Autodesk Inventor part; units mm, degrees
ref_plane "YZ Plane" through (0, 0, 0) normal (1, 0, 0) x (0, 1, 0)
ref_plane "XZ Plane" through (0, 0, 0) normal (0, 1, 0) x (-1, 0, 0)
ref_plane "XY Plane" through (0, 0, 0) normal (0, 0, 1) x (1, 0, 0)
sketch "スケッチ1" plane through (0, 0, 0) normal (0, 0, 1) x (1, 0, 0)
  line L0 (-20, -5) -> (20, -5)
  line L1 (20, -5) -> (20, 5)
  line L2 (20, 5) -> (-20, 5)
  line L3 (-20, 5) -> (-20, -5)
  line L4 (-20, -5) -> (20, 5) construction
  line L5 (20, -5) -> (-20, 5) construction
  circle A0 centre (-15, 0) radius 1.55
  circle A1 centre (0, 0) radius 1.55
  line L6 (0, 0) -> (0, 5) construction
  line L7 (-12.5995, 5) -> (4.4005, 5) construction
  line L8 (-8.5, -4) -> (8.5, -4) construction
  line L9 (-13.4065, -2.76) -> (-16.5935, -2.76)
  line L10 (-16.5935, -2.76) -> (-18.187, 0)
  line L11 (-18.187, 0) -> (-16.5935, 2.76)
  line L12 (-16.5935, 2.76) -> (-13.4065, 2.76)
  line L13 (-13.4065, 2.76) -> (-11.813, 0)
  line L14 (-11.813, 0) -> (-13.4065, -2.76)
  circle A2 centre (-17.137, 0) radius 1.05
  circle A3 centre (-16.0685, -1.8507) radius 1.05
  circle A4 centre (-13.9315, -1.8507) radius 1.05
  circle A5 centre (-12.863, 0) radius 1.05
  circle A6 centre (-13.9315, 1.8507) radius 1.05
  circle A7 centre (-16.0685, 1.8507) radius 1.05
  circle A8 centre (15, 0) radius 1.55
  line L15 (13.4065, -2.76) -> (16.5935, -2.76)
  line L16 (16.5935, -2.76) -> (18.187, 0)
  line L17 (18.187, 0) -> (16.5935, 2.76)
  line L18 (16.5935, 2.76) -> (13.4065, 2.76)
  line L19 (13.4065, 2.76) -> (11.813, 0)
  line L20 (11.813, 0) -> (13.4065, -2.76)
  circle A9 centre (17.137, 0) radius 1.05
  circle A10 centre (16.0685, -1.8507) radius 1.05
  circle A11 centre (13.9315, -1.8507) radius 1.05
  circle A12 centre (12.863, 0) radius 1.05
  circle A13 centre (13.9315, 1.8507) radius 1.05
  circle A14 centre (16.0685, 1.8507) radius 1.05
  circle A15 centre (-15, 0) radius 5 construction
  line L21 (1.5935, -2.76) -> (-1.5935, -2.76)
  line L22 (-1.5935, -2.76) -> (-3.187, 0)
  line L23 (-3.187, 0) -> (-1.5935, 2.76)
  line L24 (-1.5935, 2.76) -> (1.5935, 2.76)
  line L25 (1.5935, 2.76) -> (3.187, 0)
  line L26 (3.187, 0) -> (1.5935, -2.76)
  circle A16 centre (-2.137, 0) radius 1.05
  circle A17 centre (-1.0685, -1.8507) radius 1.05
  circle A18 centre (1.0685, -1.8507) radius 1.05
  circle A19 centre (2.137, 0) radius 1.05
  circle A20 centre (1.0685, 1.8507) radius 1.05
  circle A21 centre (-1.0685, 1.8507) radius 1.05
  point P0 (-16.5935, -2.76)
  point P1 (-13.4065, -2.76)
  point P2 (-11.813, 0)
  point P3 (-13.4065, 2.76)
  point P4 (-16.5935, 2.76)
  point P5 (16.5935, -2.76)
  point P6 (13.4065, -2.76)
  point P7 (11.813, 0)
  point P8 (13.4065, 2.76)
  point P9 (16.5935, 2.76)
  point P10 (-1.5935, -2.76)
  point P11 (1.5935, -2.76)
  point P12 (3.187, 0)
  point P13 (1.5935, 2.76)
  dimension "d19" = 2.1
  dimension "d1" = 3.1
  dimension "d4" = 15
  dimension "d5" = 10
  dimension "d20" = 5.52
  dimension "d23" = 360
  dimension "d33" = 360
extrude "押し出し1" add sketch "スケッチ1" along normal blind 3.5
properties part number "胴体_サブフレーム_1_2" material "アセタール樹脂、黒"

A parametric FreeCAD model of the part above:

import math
import FreeCAD as App
import Part
import Sketcher
from FreeCAD import Vector
Q = App.Units.Quantity


def add_polygon(sketch, points):
    """Adds a closed chain of lines whose ends are joined by coincident constraints."""
    first, n = sketch.GeometryCount, len(points)
    for a, b in zip(points, points[1:] + points[:1]):
        sketch.addGeometry(Part.LineSegment(App.Vector(*a, 0), App.Vector(*b, 0)), False)
    for i in range(n):
        sketch.addConstraint(Sketcher.Constraint("Coincident", first + i, 2, first + (i + 1) % n, 1))

doc = App.newDocument("Part")
body = doc.addObject("PartDesign::Body", "Body")

# Sketch on XY plane
sketch1 = body.newObject("Sketcher::SketchObject", "Sketch")
sketch1.AttachmentSupport = (doc.getObject("XY_Plane"), [""])
sketch1.MapMode = "FlatFace"
add_polygon(sketch1, [(-20, 5), (-20, -5), (20, -5), (20, 5)])  # lines 0-3
sketch1.addGeometry(Part.LineSegment(Vector(-12.9, 1.9, 0), Vector(-12.3, 0.9, 0)), False)  # 4
sketch1.addGeometry(Part.ArcOfCircle(Part.Circle(Vector(-12.9, 0, 0), Vector(0, 0, 1), 1.1), math.radians(-60), math.radians(60)), False)  # 5
sketch1.addGeometry(Part.LineSegment(Vector(-12.3, -0.9, 0), Vector(-12.9, -1.9, 0)), False)  # 6
sketch1.addGeometry(Part.ArcOfCircle(Part.Circle(Vector(-13.9, -1.9, 0), Vector(0, 0, 1), 1.1), math.radians(-120), math.radians(0)), False)  # 7
sketch1.addGeometry(Part.LineSegment(Vector(-14.5, -2.8, 0), Vector(-15.5, -2.8, 0)), False)  # 8
sketch1.addGeometry(Part.ArcOfCircle(Part.Circle(Vector(-16.1, -1.9, 0), Vector(0, 0, 1), 1.1), math.radians(180), math.radians(300)), False)  # 9
sketch1.addGeometry(Part.LineSegment(Vector(-17.1, -1.9, 0), Vector(-17.7, -0.9, 0)), False)  # 10
sketch1.addGeometry(Part.ArcOfCircle(Part.Circle(Vector(-17.1, 0, 0), Vector(0, 0, 1), 1.1), math.radians(120), math.radians(240)), False)  # 11
sketch1.addGeometry(Part.LineSegment(Vector(-17.7, 0.9, 0), Vector(-17.1, 1.9, 0)), False)  # 12
sketch1.addGeometry(Part.ArcOfCircle(Part.Circle(Vector(-16.1, 1.9, 0), Vector(0, 0, 1), 1.1), math.radians(60), math.radians(180)), False)  # 13
sketch1.addGeometry(Part.LineSegment(Vector(-15.5, 2.8, 0), Vector(-14.5, 2.8, 0)), False)  # 14
sketch1.addGeometry(Part.ArcOfCircle(Part.Circle(Vector(-13.9, 1.9, 0), Vector(0, 0, 1), 1.1), math.radians(0), math.radians(120)), False)  # 15
sketch1.addGeometry(Part.LineSegment(Vector(2.1, 1.9, 0), Vector(2.7, 0.9, 0)), False)  # 16
sketch1.addGeometry(Part.ArcOfCircle(Part.Circle(Vector(2.1, 0, 0), Vector(0, 0, 1), 1.1), math.radians(-60), math.radians(60)), False)  # 17
sketch1.addGeometry(Part.LineSegment(Vector(2.7, -0.9, 0), Vector(2.1, -1.9, 0)), False)  # 18
sketch1.addGeometry(Part.ArcOfCircle(Part.Circle(Vector(1.1, -1.9, 0), Vector(0, 0, 1), 1.1), math.radians(-120), math.radians(0)), False)  # 19
sketch1.addGeometry(Part.LineSegment(Vector(0.5, -2.8, 0), Vector(-0.5, -2.8, 0)), False)  # 20
sketch1.addGeometry(Part.ArcOfCircle(Part.Circle(Vector(-1.1, -1.9, 0), Vector(0, 0, 1), 1.1), math.radians(180), math.radians(300)), False)  # 21
sketch1.addGeometry(Part.LineSegment(Vector(-2.1, -1.9, 0), Vector(-2.7, -0.9, 0)), False)  # 22
sketch1.addGeometry(Part.ArcOfCircle(Part.Circle(Vector(-2.1, 0, 0), Vector(0, 0, 1), 1.1), math.radians(120), math.radians(240)), False)  # 23
sketch1.addGeometry(Part.LineSegment(Vector(-2.7, 0.9, 0), Vector(-2.1, 1.9, 0)), False)  # 24
sketch1.addGeometry(Part.ArcOfCircle(Part.Circle(Vector(-1.1, 1.9, 0), Vector(0, 0, 1), 1.1), math.radians(60), math.radians(180)), False)  # 25
sketch1.addGeometry(Part.LineSegment(Vector(-0.5, 2.8, 0), Vector(0.5, 2.8, 0)), False)  # 26
sketch1.addGeometry(Part.ArcOfCircle(Part.Circle(Vector(1.1, 1.9, 0), Vector(0, 0, 1), 1.1), math.radians(0), math.radians(120)), False)  # 27
sketch1.addGeometry(Part.LineSegment(Vector(17.1, 1.9, 0), Vector(17.7, 0.9, 0)), False)  # 28
sketch1.addGeometry(Part.ArcOfCircle(Part.Circle(Vector(17.1, 0, 0), Vector(0, 0, 1), 1.1), math.radians(-60), math.radians(60)), False)  # 29
sketch1.addGeometry(Part.LineSegment(Vector(17.7, -0.9, 0), Vector(17.1, -1.9, 0)), False)  # 30
sketch1.addGeometry(Part.ArcOfCircle(Part.Circle(Vector(16.1, -1.9, 0), Vector(0, 0, 1), 1.1), math.radians(-120), math.radians(0)), False)  # 31
sketch1.addGeometry(Part.LineSegment(Vector(15.5, -2.8, 0), Vector(14.5, -2.8, 0)), False)  # 32
sketch1.addGeometry(Part.ArcOfCircle(Part.Circle(Vector(13.9, -1.9, 0), Vector(0, 0, 1), 1.1), math.radians(180), math.radians(300)), False)  # 33
sketch1.addGeometry(Part.LineSegment(Vector(12.9, -1.9, 0), Vector(12.3, -0.9, 0)), False)  # 34
sketch1.addGeometry(Part.ArcOfCircle(Part.Circle(Vector(12.9, 0, 0), Vector(0, 0, 1), 1.1), math.radians(120), math.radians(240)), False)  # 35
sketch1.addGeometry(Part.LineSegment(Vector(12.3, 0.9, 0), Vector(12.9, 1.9, 0)), False)  # 36
sketch1.addGeometry(Part.ArcOfCircle(Part.Circle(Vector(13.9, 1.9, 0), Vector(0, 0, 1), 1.1), math.radians(60), math.radians(180)), False)  # 37
sketch1.addGeometry(Part.LineSegment(Vector(14.5, 2.8, 0), Vector(15.5, 2.8, 0)), False)  # 38
sketch1.addGeometry(Part.ArcOfCircle(Part.Circle(Vector(16.1, 1.9, 0), Vector(0, 0, 1), 1.1), math.radians(0), math.radians(120)), False)  # 39
sketch1.addConstraint([
    Sketcher.Constraint("Coincident", 4, 2, 5, 2),
    Sketcher.Constraint("Coincident", 5, 1, 6, 1),
    Sketcher.Constraint("Coincident", 6, 2, 7, 2),
    Sketcher.Constraint("Coincident", 7, 1, 8, 1),
    Sketcher.Constraint("Coincident", 8, 2, 9, 2),
    Sketcher.Constraint("Coincident", 9, 1, 10, 1),
    Sketcher.Constraint("Coincident", 10, 2, 11, 2),
    Sketcher.Constraint("Coincident", 11, 1, 12, 1),
    Sketcher.Constraint("Coincident", 12, 2, 13, 2),
    Sketcher.Constraint("Coincident", 13, 1, 14, 1),
    Sketcher.Constraint("Coincident", 14, 2, 15, 2),
    Sketcher.Constraint("Coincident", 15, 1, 4, 1),
    Sketcher.Constraint("Coincident", 16, 2, 17, 2),
    Sketcher.Constraint("Coincident", 17, 1, 18, 1),
    Sketcher.Constraint("Coincident", 18, 2, 19, 2),
    Sketcher.Constraint("Coincident", 19, 1, 20, 1),
    Sketcher.Constraint("Coincident", 20, 2, 21, 2),
    Sketcher.Constraint("Coincident", 21, 1, 22, 1),
    Sketcher.Constraint("Coincident", 22, 2, 23, 2),
    Sketcher.Constraint("Coincident", 23, 1, 24, 1),
    Sketcher.Constraint("Coincident", 24, 2, 25, 2),
    Sketcher.Constraint("Coincident", 25, 1, 26, 1),
    Sketcher.Constraint("Coincident", 26, 2, 27, 2),
    Sketcher.Constraint("Coincident", 27, 1, 16, 1),
    Sketcher.Constraint("Coincident", 28, 2, 29, 2),
    Sketcher.Constraint("Coincident", 29, 1, 30, 1),
    Sketcher.Constraint("Coincident", 30, 2, 31, 2),
    Sketcher.Constraint("Coincident", 31, 1, 32, 1),
    Sketcher.Constraint("Coincident", 32, 2, 33, 2),
    Sketcher.Constraint("Coincident", 33, 1, 34, 1),
    Sketcher.Constraint("Coincident", 34, 2, 35, 2),
    Sketcher.Constraint("Coincident", 35, 1, 36, 1),
    Sketcher.Constraint("Coincident", 36, 2, 37, 2),
    Sketcher.Constraint("Coincident", 37, 1, 38, 1),
    Sketcher.Constraint("Coincident", 38, 2, 39, 2),
    Sketcher.Constraint("Coincident", 39, 1, 28, 1),
    Sketcher.Constraint("Vertical", 0),
    Sketcher.Constraint("Horizontal", 1),
    Sketcher.Constraint("Vertical", 2),
    Sketcher.Constraint("Horizontal", 3),
    Sketcher.Constraint("Horizontal", 8),
    Sketcher.Constraint("Horizontal", 14),
    Sketcher.Constraint("Horizontal", 20),
    Sketcher.Constraint("Horizontal", 26),
    Sketcher.Constraint("Horizontal", 32),
    Sketcher.Constraint("Horizontal", 38),
    Sketcher.Constraint("Equal", 5, 7),
    Sketcher.Constraint("Equal", 7, 9),
    Sketcher.Constraint("Equal", 9, 11),
    Sketcher.Constraint("Equal", 11, 13),
    Sketcher.Constraint("Equal", 13, 15),
    Sketcher.Constraint("Equal", 15, 17),
    Sketcher.Constraint("Equal", 17, 19),
    Sketcher.Constraint("Equal", 19, 21),
    Sketcher.Constraint("Equal", 21, 23),
    Sketcher.Constraint("Equal", 23, 25),
    Sketcher.Constraint("Equal", 25, 27),
    Sketcher.Constraint("Equal", 27, 29),
    Sketcher.Constraint("Equal", 29, 31),
    Sketcher.Constraint("Equal", 31, 33),
    Sketcher.Constraint("Equal", 33, 35),
    Sketcher.Constraint("Equal", 35, 37),
    Sketcher.Constraint("Equal", 37, 39),
    Sketcher.Constraint("Symmetric", 17, 3, 23, 3, -1, 1),
    Sketcher.Constraint("Symmetric", 19, 3, 25, 3, -1, 1),
    Sketcher.Constraint("Symmetric", 21, 3, 27, 3, -1, 1),
    Sketcher.Constraint("Symmetric", 11, 3, 29, 3, -1, 1),
    Sketcher.Constraint("Symmetric", 13, 3, 31, 3, -1, 1),
    Sketcher.Constraint("Symmetric", 15, 3, 33, 3, -1, 1),
    Sketcher.Constraint("Symmetric", 5, 3, 35, 3, -1, 1),
    Sketcher.Constraint("Symmetric", 7, 3, 37, 3, -1, 1),
    Sketcher.Constraint("Symmetric", 9, 3, 39, 3, -1, 1),
    Sketcher.Constraint("Symmetric", 0, 2, 2, 2, -1, 1),
    Sketcher.Constraint("Symmetric", 19, 3, 21, 3, -2),
    Sketcher.Constraint("Symmetric", 9, 3, 31, 3, -2),
    Sketcher.Constraint("Symmetric", 7, 3, 33, 3, -2),
    Sketcher.Constraint("Symmetric", 17, 1, 22, 2, -2),
    Sketcher.Constraint("Symmetric", 11, 1, 28, 2, -2),
    Sketcher.Constraint("Symmetric", 5, 1, 34, 2, -2),
    Sketcher.Constraint("Parallel", 4, 10),
    Sketcher.Constraint("Parallel", 6, 12),
    Sketcher.Constraint("Parallel", 10, 16),
    Sketcher.Constraint("Parallel", 12, 18),
    Sketcher.Constraint("Parallel", 16, 22),
    Sketcher.Constraint("Parallel", 18, 24),
    Sketcher.Constraint("Parallel", 22, 28),
    Sketcher.Constraint("Parallel", 24, 30),
    Sketcher.Constraint("Parallel", 28, 34),
    Sketcher.Constraint("Parallel", 30, 36),
    Sketcher.Constraint("Horizontal", 7, 3, 9, 3),
    Sketcher.Constraint("Horizontal", 9, 3, 19, 3),
    Sketcher.Constraint("Horizontal", 33, 3, 6, 2),
    Sketcher.Constraint("Horizontal", 6, 2, 9, 1),
    Sketcher.Constraint("Horizontal", 5, 1, 10, 2),
    Sketcher.Constraint("Horizontal", 4, 2, 11, 1),
    Sketcher.Constraint("Horizontal", 39, 3, 12, 2),
    Sketcher.Constraint("Horizontal", 12, 2, 15, 1),
    Sketcher.Constraint("Horizontal", 11, 1, 16, 2),
    Sketcher.Constraint("Horizontal", 10, 2, 17, 1),
    Sketcher.Constraint("Horizontal", 9, 1, 18, 2),
    Sketcher.Constraint("Horizontal", 8, 2, 19, 1),
    Sketcher.Constraint("Horizontal", 16, 2, 23, 1),
    Sketcher.Constraint("Horizontal", 14, 2, 25, 1),
    Sketcher.Constraint("Horizontal", 22, 2, 29, 1),
    Sketcher.Constraint("Horizontal", 20, 2, 31, 1),
    Sketcher.Constraint("Horizontal", 28, 2, 35, 1),
    Sketcher.Constraint("Horizontal", 26, 2, 37, 1),
    Sketcher.Constraint("Vertical", 8, 2, 13, 1),
    Sketcher.Constraint("Equal", 14, 20),
    Sketcher.Constraint("DistanceY", 0, 2, 0, 1, 10.0),
    Sketcher.Constraint("Radius", 5, 1.05),
    Sketcher.Constraint("DistanceX", 5, 3, 17, 3, 15.0),
    Sketcher.Constraint("DistanceX", 1, 1, 1, 2, 40.0),
    Sketcher.Constraint("Angle", 4, Q("-59.9998 deg")),
    Sketcher.Constraint("DistanceX", 8, 2, 8, 1, 1.087),
    Sketcher.Constraint("DistanceY", 7, 1, -1, 1, 2.76),
    Sketcher.Constraint("DistanceY", 7, 3, 4, 2, 2.76),
    Sketcher.Constraint("Distance", 4, 1.087),
])
pad1 = body.newObject("PartDesign::Pad", "Pad")
pad1.Profile = sketch1
pad1.Length = 3.5

doc.recompute()
